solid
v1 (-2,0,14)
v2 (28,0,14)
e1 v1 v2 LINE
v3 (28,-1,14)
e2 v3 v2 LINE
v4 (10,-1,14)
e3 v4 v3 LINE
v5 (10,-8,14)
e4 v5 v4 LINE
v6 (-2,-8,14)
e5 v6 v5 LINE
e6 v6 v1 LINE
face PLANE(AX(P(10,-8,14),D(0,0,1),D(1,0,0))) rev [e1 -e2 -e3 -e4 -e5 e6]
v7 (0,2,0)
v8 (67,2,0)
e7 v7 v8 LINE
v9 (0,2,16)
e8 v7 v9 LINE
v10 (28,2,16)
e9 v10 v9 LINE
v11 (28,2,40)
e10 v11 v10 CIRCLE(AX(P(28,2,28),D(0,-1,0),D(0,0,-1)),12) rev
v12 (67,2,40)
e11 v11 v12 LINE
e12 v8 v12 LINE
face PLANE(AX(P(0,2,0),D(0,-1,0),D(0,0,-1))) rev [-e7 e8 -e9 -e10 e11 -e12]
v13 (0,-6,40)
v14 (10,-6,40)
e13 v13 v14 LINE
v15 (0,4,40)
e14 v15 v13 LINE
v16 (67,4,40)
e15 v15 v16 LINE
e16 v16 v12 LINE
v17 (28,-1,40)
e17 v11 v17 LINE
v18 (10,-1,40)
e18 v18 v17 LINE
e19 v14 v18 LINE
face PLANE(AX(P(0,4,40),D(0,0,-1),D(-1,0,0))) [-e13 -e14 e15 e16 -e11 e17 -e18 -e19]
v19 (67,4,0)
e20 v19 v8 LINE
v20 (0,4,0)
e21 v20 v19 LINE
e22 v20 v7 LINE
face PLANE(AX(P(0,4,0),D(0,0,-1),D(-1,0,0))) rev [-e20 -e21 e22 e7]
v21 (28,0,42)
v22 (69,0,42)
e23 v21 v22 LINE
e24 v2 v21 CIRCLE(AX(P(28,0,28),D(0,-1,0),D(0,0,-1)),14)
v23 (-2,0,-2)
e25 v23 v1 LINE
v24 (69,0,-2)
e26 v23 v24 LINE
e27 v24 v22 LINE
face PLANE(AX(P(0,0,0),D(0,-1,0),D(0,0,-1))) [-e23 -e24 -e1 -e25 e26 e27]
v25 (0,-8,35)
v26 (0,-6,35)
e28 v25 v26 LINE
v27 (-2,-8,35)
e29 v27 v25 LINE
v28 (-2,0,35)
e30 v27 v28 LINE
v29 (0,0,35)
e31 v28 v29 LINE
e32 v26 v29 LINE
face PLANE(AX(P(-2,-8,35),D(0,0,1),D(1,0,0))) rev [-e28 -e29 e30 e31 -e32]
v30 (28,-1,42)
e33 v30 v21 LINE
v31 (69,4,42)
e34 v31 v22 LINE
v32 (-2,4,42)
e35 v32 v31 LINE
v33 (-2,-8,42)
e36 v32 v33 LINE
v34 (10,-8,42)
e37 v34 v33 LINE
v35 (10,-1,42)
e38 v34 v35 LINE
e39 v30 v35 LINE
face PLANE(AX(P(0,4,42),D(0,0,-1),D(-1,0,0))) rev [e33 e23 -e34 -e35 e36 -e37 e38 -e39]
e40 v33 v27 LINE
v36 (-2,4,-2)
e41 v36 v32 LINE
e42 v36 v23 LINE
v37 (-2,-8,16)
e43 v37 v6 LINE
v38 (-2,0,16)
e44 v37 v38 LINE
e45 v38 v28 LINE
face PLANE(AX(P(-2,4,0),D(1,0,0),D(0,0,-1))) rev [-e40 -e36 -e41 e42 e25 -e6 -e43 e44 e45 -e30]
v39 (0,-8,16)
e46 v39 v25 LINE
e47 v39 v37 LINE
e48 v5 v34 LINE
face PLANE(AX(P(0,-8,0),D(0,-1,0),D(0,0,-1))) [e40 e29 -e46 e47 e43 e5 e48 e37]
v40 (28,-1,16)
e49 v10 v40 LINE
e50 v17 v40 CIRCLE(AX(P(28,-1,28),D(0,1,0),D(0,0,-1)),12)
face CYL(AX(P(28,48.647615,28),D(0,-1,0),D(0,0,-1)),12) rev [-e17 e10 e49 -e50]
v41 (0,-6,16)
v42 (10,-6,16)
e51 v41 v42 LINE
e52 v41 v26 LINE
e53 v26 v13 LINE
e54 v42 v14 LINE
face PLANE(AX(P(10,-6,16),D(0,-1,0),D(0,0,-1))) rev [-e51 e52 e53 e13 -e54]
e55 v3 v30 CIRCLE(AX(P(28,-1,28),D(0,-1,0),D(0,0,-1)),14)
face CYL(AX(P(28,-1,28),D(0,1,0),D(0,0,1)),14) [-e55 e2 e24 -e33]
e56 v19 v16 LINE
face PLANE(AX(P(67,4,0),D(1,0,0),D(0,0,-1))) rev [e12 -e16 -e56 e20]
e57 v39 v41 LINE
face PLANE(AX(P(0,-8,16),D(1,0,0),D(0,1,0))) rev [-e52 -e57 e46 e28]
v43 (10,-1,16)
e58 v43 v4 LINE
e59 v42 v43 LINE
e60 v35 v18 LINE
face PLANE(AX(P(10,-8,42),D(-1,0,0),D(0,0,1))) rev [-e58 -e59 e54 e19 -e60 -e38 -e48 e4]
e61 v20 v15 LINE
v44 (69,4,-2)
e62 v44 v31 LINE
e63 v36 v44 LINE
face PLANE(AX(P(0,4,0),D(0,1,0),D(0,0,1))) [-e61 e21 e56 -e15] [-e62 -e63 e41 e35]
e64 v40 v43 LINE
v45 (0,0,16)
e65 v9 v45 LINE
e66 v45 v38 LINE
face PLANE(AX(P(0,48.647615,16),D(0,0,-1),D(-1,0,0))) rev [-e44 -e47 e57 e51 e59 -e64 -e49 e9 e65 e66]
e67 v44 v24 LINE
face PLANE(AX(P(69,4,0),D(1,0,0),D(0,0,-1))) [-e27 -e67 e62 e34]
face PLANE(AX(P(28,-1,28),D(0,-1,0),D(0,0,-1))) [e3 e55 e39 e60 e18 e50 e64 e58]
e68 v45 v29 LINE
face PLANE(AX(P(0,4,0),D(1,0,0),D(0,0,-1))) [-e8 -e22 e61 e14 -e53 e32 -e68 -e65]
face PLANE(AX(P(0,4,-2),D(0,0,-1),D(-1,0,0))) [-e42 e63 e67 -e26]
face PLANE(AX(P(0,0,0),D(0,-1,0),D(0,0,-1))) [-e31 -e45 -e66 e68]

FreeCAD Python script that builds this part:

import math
import FreeCAD as App
import Part
import Sketcher

V = App.Vector
Q = App.Units.Quantity


def add_polygon(sketch, points):
    """Adds a closed chain of lines whose ends are joined by coincident constraints."""
    first, n = sketch.GeometryCount, len(points)
    for a, b in zip(points, points[1:] + points[:1]):
        sketch.addGeometry(Part.LineSegment(App.Vector(*a, 0), App.Vector(*b, 0)), False)
    for i in range(n):
        sketch.addConstraint(Sketcher.Constraint("Coincident", first + i, 2, first + (i + 1) % n, 1))

doc = App.newDocument("Part")
params = doc.addObject("Spreadsheet::Sheet", "Params")
for row, (alias, value) in enumerate([
    ("sketch1_width", "67 mm"),
    ("sketch1_height", "40 mm"),
    ("pad1_length", "2 mm"),
    ("sketch2_width", "71 mm"),
    ("sketch2_width2", "67 mm"),
    ("sketch2_height", "44 mm"),
    ("sketch2_height2", "40 mm"),
    ("pad2_length", "4 mm"),
    ("sketch3_radius", "12 mm"),
    ("sketch3_width", "28 mm"),
    ("pocket1_length", "2 mm"),
    ("sketch4_width", "12 mm"),
    ("sketch4_width2", "2 mm"),
    ("sketch4_height", "7 mm"),
    ("pad3_length", "8 mm"),
    ("sketch5_width", "10 mm"),
    ("sketch5_height", "2 mm"),
    ("pad4_length", "24 mm"),
    ("sketch6_radius", "14 mm"),
    ("sketch6_radius2", "12 mm"),
    ("sketch6_width", "18 mm"),
    ("pad5_length", "1 mm"),
], start=1):
    params.set(f"A{row}", alias)
    params.set(f"B{row}", "=" + value)
    params.setAlias(f"B{row}", alias)

body = doc.addObject("PartDesign::Body", "Body")

sketch1 = body.newObject("Sketcher::SketchObject", "Sketch")
sketch1.AttachmentSupport = (doc.getObject("XZ_Plane"), [""])
sketch1.MapMode = "FlatFace"
add_polygon(sketch1, [(0, 0), (0, 40), (67, 40), (67, 0)])
sketch1.addConstraint([
    Sketcher.Constraint("Vertical", 0),
    Sketcher.Constraint("Horizontal", 1),
    Sketcher.Constraint("Vertical", 2),
    Sketcher.Constraint("Horizontal", 3),
    Sketcher.Constraint("Coincident", 3, 2, -1, 1),
    Sketcher.Constraint("DistanceX", 1, 1, 1, 2, Q("67 mm")),
    Sketcher.Constraint("DistanceY", 0, 1, 0, 2, Q("40 mm")),
])
sketch1.setExpression("Constraints[9]", "Params.sketch1_width")
sketch1.setExpression("Constraints[10]", "Params.sketch1_height")
pad1 = body.newObject("PartDesign::Pad", "Pad")
pad1.Profile = sketch1
pad1.setExpression("Length", "Params.pad1_length")
pad1.Reversed = True

sketch2 = body.newObject("Sketcher::SketchObject", "Sketch001")
sketch2.AttachmentSupport = (doc.getObject("XZ_Plane"), [""])
sketch2.MapMode = "FlatFace"
add_polygon(sketch2, [(-2, -2), (-2, 42), (69, 42), (69, -2)])
add_polygon(sketch2, [(67, 40), (0, 40), (0, 0), (67, 0)])
sketch2.addConstraint([
    Sketcher.Constraint("Vertical", 0),
    Sketcher.Constraint("Horizontal", 1),
    Sketcher.Constraint("Vertical", 2),
    Sketcher.Constraint("Horizontal", 3),
    Sketcher.Constraint("Horizontal", 4),
    Sketcher.Constraint("Vertical", 5),
    Sketcher.Constraint("Horizontal", 6),
    Sketcher.Constraint("Vertical", 7),
    Sketcher.Constraint("Coincident", 5, 2, -1, 1),
    Sketcher.Constraint("DistanceX", 1, 1, 1, 2, Q("71 mm")),
    Sketcher.Constraint("DistanceX", 4, 2, 4, 1, Q("67 mm")),
    Sketcher.Constraint("DistanceY", 0, 1, 0, 2, Q("44 mm")),
    Sketcher.Constraint("DistanceY", 5, 2, 5, 1, Q("40 mm")),
    Sketcher.Constraint("DistanceX", 0, 2, -1, 1, Q("2 mm")),
    Sketcher.Constraint("DistanceY", -1, 1, 0, 2, Q("42 mm")),
])
sketch2.setExpression("Constraints[17]", "Params.sketch2_width")
sketch2.setExpression("Constraints[18]", "Params.sketch2_width2")
sketch2.setExpression("Constraints[19]", "Params.sketch2_height")
sketch2.setExpression("Constraints[20]", "Params.sketch2_height2")
pad2 = body.newObject("PartDesign::Pad", "Pad001")
pad2.Profile = sketch2
pad2.setExpression("Length", "Params.pad2_length")
pad2.Reversed = True

sketch3 = body.newObject("Sketcher::SketchObject", "Sketch002")
sketch3.AttachmentSupport = (doc.getObject("XZ_Plane"), [""])
sketch3.MapMode = "FlatFace"
sketch3.addGeometry([
    Part.LineSegment(V(0, 16, 0), V(0, 40, 0)),
    Part.LineSegment(V(0, 40, 0), V(28, 40, 0)),
    Part.ArcOfCircle(Part.Circle(V(28, 28, 0), V(0, 0, 1), 12), math.radians(-90), math.radians(90)),
    Part.LineSegment(V(28, 16, 0), V(0, 16, 0)),
], False)
sketch3.addConstraint([
    Sketcher.Constraint("Coincident", 0, 2, 1, 1),
    Sketcher.Constraint("Tangent", 1, 2, 2, 2),
    Sketcher.Constraint("Tangent", 2, 1, 3, 1),
    Sketcher.Constraint("Coincident", 3, 2, 0, 1),
    Sketcher.Constraint("Vertical", 0),
    Sketcher.Constraint("Horizontal", 1),
    Sketcher.Constraint("Horizontal", 3),
    Sketcher.Constraint("PointOnObject", 0, 2, -2),
    Sketcher.Constraint("Radius", 2, Q("12 mm")),
    Sketcher.Constraint("DistanceX", 1, 1, 1, 2, Q("28 mm")),
    Sketcher.Constraint("DistanceY", -1, 1, 2, 3, Q("28 mm")),
])
sketch3.setExpression("Constraints[8]", "Params.sketch3_radius")
sketch3.setExpression("Constraints[9]", "Params.sketch3_width")
pocket1 = body.newObject("PartDesign::Pocket", "Pocket")
pocket1.Profile = sketch3
pocket1.setExpression("Length", "Params.pocket1_length")

sketch4 = body.newObject("Sketcher::SketchObject", "Sketch003")
sketch4.AttachmentSupport = (doc.getObject("XZ_Plane"), [""])
sketch4.MapMode = "FlatFace"
add_polygon(sketch4, [(-2, 16), (-2, 14), (10, 14), (10, 16)])
add_polygon(sketch4, [(10, 42), (-2, 42), (-2, 35), (0, 35), (0, 40), (10, 40)])
sketch4.addConstraint([
    Sketcher.Constraint("Vertical", 0),
    Sketcher.Constraint("Horizontal", 1),
    Sketcher.Constraint("Vertical", 2),
    Sketcher.Constraint("Horizontal", 3),
    Sketcher.Constraint("Horizontal", 4),
    Sketcher.Constraint("Vertical", 5),
    Sketcher.Constraint("Horizontal", 6),
    Sketcher.Constraint("Vertical", 7),
    Sketcher.Constraint("Horizontal", 8),
    Sketcher.Constraint("Vertical", 9),
    Sketcher.Constraint("PointOnObject", 6, 2, -2),
    Sketcher.Constraint("Vertical", 3, 2, 4, 2),
    Sketcher.Constraint("Vertical", 2, 2, 8, 2),
    Sketcher.Constraint("Equal", 6, 0),
    Sketcher.Constraint("Equal", 2, 9),
    Sketcher.Constraint("DistanceX", 1, 1, 1, 2, Q("12 mm")),
    Sketcher.Constraint("DistanceX", 6, 1, 6, 2, Q("2 mm")),
    Sketcher.Constraint("DistanceY", 5, 2, 5, 1, Q("7 mm")),
    Sketcher.Constraint("DistanceY", -1, 1, 0, 2, Q("14 mm")),
    Sketcher.Constraint("DistanceY", -1, 1, 4, 2, Q("42 mm")),
])
sketch4.setExpression("Constraints[25]", "Params.sketch4_width")
sketch4.setExpression("Constraints[26]", "Params.sketch4_width2")
sketch4.setExpression("Constraints[27]", "Params.sketch4_height")
pad3 = body.newObject("PartDesign::Pad", "Pad002")
pad3.Profile = sketch4
pad3.setExpression("Length", "Params.pad3_length")

sketch5 = body.newObject("Sketcher::SketchObject", "Sketch004")
sketch5.AttachmentSupport = (doc.getObject("XY_Plane"), [""])
sketch5.MapMode = "FlatFace"
sketch5.AttachmentOffset = App.Placement(V(0, 0, 40), App.Rotation())
add_polygon(sketch5, [(10, -6), (10, -8), (0, -8), (0, -6)])
sketch5.addConstraint([
    Sketcher.Constraint("Vertical", 0),
    Sketcher.Constraint("Horizontal", 1),
    Sketcher.Constraint("Vertical", 2),
    Sketcher.Constraint("Horizontal", 3),
    Sketcher.Constraint("PointOnObject", 1, 2, -2),
    Sketcher.Constraint("DistanceX", 1, 2, 1, 1, Q("10 mm")),
    Sketcher.Constraint("DistanceY", 0, 2, 0, 1, Q("2 mm")),
    Sketcher.Constraint("DistanceY", 0, 2, -1, 1, Q("8 mm")),
])
sketch5.setExpression("Constraints[9]", "Params.sketch5_width")
sketch5.setExpression("Constraints[10]", "Params.sketch5_height")
pad4 = body.newObject("PartDesign::Pad", "Pad003")
pad4.Profile = sketch5
pad4.setExpression("Length", "Params.pad4_length")
pad4.Reversed = True

sketch6 = body.newObject("Sketcher::SketchObject", "Sketch005")
sketch6.AttachmentSupport = (doc.getObject("XZ_Plane"), [""])
sketch6.MapMode = "FlatFace"
sketch6.AttachmentOffset = App.Placement(V(0, 0, 1), App.Rotation())
sketch6.addGeometry([
    Part.LineSegment(V(28, 16, 0), V(10, 16, 0)),
    Part.LineSegment(V(10, 16, 0), V(10, 14, 0)),
    Part.LineSegment(V(10, 14, 0), V(28, 14, 0)),
    Part.ArcOfCircle(Part.Circle(V(28, 28, 0), V(0, 0, 1), 14), math.radians(-90), math.radians(90)),
    Part.LineSegment(V(28, 42, 0), V(10, 42, 0)),
    Part.LineSegment(V(10, 42, 0), V(10, 40, 0)),
    Part.LineSegment(V(10, 40, 0), V(28, 40, 0)),
    Part.ArcOfCircle(Part.Circle(V(28, 28, 0), V(0, 0, 1), 12), math.radians(-90), math.radians(90)),
], False)
sketch6.addConstraint([
    Sketcher.Constraint("Coincident", 0, 2, 1, 1),
    Sketcher.Constraint("Coincident", 1, 2, 2, 1),
    Sketcher.Constraint("Tangent", 2, 2, 3, 1),
    Sketcher.Constraint("Tangent", 3, 2, 4, 1),
    Sketcher.Constraint("Coincident", 4, 2, 5, 1),
    Sketcher.Constraint("Coincident", 5, 2, 6, 1),
    Sketcher.Constraint("Tangent", 6, 2, 7, 2),
    Sketcher.Constraint("Tangent", 7, 1, 0, 1),
    Sketcher.Constraint("Horizontal", 0),
    Sketcher.Constraint("Vertical", 1),
    Sketcher.Constraint("Horizontal", 2),
    Sketcher.Constraint("Horizontal", 4),
    Sketcher.Constraint("Vertical", 5),
    Sketcher.Constraint("Horizontal", 6),
    Sketcher.Constraint("Coincident", 7, 3, 3, 3),
    Sketcher.Constraint("Vertical", 1, 2, 4, 2),
    Sketcher.Constraint("Radius", 3, Q("14 mm")),
    Sketcher.Constraint("Radius", 7, Q("12 mm")),
    Sketcher.Constraint("DistanceX", 0, 2, 0, 1, Q("18 mm")),
    Sketcher.Constraint("DistanceX", -1, 1, 3, 3, Q("28 mm")),
    Sketcher.Constraint("DistanceY", -1, 1, 3, 3, Q("28 mm")),
])
sketch6.setExpression("Constraints[16]", "Params.sketch6_radius")
sketch6.setExpression("Constraints[17]", "Params.sketch6_radius2")
sketch6.setExpression("Constraints[18]", "Params.sketch6_width")
pad5 = body.newObject("PartDesign::Pad", "Pad004")
pad5.Profile = sketch6
pad5.setExpression("Length", "Params.pad5_length")
pad5.Reversed = True

doc.recompute()
